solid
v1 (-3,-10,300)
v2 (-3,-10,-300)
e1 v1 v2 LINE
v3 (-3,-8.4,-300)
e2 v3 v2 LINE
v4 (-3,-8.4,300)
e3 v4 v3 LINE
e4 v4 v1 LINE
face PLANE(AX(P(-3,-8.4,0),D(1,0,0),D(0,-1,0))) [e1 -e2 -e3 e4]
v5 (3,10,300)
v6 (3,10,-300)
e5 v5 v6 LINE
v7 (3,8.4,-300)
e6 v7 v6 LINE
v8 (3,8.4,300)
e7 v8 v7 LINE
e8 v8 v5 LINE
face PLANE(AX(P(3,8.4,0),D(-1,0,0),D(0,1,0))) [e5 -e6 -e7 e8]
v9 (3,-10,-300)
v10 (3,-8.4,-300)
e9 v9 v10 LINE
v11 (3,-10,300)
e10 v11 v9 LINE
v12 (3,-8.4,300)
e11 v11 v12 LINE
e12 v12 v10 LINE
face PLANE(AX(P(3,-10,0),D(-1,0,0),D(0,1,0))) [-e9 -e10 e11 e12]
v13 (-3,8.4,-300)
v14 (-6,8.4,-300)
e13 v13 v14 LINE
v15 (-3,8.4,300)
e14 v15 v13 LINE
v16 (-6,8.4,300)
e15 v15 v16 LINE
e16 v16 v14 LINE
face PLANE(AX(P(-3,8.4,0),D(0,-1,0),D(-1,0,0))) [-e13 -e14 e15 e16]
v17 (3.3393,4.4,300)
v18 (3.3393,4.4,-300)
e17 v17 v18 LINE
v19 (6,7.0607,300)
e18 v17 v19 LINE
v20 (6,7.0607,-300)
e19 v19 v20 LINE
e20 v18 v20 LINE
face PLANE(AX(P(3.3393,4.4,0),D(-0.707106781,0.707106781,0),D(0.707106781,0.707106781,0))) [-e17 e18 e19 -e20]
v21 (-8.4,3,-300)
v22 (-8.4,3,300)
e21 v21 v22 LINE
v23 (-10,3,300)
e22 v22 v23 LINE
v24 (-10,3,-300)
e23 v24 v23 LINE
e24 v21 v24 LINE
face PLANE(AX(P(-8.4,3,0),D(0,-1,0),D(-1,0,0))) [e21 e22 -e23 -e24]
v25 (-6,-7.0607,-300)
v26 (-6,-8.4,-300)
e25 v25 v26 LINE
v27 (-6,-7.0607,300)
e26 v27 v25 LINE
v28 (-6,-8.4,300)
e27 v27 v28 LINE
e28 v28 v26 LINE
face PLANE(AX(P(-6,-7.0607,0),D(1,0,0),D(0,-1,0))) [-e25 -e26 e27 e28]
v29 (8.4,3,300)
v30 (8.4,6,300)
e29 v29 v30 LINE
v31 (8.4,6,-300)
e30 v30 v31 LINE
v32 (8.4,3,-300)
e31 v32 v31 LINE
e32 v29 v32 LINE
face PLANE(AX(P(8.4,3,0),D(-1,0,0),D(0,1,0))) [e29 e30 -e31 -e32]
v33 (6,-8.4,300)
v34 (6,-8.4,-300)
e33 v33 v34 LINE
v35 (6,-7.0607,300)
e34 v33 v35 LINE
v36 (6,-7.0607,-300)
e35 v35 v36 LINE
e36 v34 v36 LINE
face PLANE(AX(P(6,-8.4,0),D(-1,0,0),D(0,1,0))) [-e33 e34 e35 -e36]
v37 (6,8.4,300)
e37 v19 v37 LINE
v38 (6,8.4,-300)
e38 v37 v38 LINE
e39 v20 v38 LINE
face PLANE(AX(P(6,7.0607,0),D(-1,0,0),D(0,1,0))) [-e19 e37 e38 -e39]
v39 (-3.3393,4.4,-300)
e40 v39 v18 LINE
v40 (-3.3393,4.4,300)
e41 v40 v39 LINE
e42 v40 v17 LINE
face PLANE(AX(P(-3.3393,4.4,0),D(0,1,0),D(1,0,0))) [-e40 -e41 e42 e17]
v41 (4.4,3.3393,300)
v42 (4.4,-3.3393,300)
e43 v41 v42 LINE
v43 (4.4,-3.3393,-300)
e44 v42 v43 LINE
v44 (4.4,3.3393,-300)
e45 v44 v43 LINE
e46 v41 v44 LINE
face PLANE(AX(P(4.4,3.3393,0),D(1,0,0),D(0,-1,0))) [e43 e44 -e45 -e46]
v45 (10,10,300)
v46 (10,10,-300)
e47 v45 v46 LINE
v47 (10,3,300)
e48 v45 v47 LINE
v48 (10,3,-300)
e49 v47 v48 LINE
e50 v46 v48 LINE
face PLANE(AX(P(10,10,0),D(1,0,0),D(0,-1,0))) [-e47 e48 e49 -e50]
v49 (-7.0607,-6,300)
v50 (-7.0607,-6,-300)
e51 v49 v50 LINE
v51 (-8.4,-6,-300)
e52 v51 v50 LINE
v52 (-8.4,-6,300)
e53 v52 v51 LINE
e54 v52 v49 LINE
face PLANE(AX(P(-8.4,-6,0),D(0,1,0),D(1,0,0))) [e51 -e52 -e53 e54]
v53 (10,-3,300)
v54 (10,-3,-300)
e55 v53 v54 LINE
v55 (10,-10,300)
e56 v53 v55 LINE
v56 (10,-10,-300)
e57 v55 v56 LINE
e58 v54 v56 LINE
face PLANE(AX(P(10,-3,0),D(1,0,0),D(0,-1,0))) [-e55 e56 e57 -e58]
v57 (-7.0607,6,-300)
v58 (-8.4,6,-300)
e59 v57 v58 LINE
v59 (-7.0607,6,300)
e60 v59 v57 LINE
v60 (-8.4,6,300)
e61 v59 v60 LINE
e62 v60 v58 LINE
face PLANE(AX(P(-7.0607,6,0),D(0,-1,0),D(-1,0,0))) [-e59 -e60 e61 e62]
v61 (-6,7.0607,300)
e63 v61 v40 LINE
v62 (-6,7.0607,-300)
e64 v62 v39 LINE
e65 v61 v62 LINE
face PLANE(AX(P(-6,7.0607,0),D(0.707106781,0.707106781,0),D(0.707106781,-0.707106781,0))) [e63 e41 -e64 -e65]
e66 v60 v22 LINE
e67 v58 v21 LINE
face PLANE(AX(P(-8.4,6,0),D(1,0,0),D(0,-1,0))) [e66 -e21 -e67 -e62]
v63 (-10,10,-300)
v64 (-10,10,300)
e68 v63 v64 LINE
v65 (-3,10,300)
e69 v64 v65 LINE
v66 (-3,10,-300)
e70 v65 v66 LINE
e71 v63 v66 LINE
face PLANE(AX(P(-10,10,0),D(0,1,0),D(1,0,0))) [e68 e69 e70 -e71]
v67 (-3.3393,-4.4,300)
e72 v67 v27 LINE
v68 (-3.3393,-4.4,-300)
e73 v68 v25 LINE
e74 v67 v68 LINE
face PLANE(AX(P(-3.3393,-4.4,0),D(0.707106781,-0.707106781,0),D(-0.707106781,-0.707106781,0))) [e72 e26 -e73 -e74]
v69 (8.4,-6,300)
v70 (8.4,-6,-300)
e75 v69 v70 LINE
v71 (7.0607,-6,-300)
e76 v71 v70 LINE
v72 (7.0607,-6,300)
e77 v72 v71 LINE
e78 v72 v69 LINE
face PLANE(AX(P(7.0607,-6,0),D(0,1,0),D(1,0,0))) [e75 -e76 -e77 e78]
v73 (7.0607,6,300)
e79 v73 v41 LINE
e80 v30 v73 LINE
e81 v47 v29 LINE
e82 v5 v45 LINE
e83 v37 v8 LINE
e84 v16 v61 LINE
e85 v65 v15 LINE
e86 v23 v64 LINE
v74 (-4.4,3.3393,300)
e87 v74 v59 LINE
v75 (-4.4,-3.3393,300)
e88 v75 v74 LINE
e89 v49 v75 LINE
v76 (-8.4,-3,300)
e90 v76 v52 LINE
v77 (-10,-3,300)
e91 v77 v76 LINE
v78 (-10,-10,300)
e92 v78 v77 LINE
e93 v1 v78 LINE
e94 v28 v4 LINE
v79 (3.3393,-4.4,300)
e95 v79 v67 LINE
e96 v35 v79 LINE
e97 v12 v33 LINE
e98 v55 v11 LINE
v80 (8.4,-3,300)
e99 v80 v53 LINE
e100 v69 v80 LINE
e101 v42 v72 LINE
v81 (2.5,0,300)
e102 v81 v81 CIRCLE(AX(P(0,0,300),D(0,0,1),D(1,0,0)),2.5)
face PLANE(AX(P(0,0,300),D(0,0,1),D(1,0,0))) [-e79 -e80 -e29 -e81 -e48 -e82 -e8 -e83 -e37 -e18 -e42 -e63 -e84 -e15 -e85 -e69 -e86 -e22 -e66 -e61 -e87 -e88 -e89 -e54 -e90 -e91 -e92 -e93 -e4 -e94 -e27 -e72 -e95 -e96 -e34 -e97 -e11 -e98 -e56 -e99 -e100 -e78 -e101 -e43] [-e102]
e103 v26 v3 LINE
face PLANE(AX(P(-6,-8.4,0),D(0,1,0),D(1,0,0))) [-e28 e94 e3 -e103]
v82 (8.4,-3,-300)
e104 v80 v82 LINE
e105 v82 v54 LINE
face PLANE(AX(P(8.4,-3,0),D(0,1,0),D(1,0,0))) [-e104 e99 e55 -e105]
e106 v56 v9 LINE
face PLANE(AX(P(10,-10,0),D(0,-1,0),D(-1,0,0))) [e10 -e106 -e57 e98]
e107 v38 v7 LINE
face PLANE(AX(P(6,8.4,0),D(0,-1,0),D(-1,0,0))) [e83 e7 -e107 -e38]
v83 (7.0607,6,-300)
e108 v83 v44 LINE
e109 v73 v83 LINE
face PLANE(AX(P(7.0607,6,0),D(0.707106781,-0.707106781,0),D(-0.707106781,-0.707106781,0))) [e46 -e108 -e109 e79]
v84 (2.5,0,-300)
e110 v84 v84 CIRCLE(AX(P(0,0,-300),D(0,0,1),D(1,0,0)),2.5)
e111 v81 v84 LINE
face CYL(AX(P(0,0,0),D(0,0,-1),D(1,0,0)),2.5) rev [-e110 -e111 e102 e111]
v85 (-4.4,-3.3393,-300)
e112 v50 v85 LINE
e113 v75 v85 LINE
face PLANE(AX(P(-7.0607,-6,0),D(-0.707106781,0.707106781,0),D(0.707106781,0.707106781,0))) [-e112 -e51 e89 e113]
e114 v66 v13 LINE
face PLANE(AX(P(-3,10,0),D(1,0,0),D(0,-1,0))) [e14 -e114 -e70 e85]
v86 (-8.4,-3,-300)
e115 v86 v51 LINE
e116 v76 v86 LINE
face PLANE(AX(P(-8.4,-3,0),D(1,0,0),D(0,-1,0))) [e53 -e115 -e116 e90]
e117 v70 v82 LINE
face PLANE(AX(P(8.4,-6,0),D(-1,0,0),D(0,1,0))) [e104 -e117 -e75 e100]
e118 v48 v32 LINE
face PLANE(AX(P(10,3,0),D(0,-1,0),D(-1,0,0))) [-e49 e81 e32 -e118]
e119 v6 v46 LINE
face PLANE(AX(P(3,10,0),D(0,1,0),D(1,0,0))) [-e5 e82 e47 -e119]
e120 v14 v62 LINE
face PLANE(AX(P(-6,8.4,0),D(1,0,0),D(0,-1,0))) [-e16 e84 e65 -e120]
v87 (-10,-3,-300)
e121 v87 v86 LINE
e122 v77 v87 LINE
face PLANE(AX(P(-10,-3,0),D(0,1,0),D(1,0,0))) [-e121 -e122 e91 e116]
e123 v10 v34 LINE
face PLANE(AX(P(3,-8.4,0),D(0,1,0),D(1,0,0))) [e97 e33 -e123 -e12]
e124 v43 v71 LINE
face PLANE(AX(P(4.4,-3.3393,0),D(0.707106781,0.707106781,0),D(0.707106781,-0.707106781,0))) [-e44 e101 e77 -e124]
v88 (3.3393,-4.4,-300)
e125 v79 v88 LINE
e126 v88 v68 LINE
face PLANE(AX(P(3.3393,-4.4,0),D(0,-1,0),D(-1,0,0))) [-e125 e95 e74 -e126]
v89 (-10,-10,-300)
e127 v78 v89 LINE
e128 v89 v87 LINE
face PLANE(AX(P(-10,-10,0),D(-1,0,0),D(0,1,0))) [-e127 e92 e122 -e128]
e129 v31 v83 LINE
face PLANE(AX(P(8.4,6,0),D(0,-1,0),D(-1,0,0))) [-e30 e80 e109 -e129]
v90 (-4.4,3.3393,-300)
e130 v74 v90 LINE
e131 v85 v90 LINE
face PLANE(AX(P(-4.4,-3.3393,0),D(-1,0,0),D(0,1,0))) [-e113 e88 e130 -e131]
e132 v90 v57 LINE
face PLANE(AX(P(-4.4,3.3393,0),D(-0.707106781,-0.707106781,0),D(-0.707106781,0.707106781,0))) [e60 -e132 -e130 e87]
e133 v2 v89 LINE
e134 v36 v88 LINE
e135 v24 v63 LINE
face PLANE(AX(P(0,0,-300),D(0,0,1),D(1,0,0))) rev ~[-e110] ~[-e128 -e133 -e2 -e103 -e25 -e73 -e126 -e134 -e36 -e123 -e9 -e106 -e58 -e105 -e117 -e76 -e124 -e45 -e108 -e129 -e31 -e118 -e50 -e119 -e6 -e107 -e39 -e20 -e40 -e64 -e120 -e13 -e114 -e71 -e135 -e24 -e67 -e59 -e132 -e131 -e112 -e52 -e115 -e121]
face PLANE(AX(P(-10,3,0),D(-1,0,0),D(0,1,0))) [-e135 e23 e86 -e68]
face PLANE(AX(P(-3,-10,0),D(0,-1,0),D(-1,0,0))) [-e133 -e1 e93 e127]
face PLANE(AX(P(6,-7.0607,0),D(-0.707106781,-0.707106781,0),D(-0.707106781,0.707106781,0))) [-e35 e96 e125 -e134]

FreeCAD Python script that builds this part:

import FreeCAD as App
import Part
import Sketcher

V = App.Vector
Q = App.Units.Quantity


def add_polygon(sketch, points):
    """Adds a closed chain of lines whose ends are joined by coincident constraints."""
    first, n = sketch.GeometryCount, len(points)
    for a, b in zip(points, points[1:] + points[:1]):
        sketch.addGeometry(Part.LineSegment(App.Vector(*a, 0), App.Vector(*b, 0)), False)
    for i in range(n):
        sketch.addConstraint(Sketcher.Constraint("Coincident", first + i, 2, first + (i + 1) % n, 1))

doc = App.newDocument("Part")
params = doc.addObject("Spreadsheet::Sheet", "Params")
for row, (alias, value) in enumerate([
    ("sketch1_diameter", "5 mm"),
    ("sketch1_width", "3 mm"),
    ("sketch1_width2", "1.6 mm"),
    ("pad1_length", "600 mm"),
], start=1):
    params.set(f"A{row}", alias)
    params.set(f"B{row}", "=" + value)
    params.setAlias(f"B{row}", alias)

body = doc.addObject("PartDesign::Body", "Body")

# Sketch on XY plane
sketch1 = doc.addObject("Sketcher::SketchObject", "Sketch")
body.addObject(sketch1)
sketch1.AttachmentSupport = (doc.XY_Plane, [""])
sketch1.MapMode = "FlatFace"
add_polygon(sketch1, [(-3, 10), (-10, 10), (-10, 3), (-8.4, 3), (-8.4, 6), (-7.0607, 6), (-4.4, 3.3393), (-4.4, -3.3393), (-7.0607, -6), (-8.4, -6), (-8.4, -3), (-10, -3), (-10, -10), (-3, -10), (-3, -8.4), (-6, -8.4), (-6, -7.0607), (-3.3393, -4.4), (3.3393, -4.4), (6, -7.0607), (6, -8.4), (3, -8.4), (3, -10), (10, -10), (10, -3), (8.4, -3), (8.4, -6), (7.0607, -6), (4.4, -3.3393), (4.4, 3.3393), (7.0607, 6), (8.4, 6), (8.4, 3), (10, 3), (10, 10), (3, 10), (3, 8.4), (6, 8.4), (6, 7.0607), (3.3393, 4.4), (-3.3393, 4.4), (-6, 7.0607), (-6, 8.4), (-3, 8.4)])  # lines 0-43
sketch1.addGeometry(Part.Circle(V(0, 0, 0), V(0, 0, 1), 2.5), False)  # 44
sketch1.addConstraint([
    Sketcher.Constraint("Horizontal", 0),
    Sketcher.Constraint("Vertical", 1),
    Sketcher.Constraint("Horizontal", 2),
    Sketcher.Constraint("Vertical", 3),
    Sketcher.Constraint("Horizontal", 4),
    Sketcher.Constraint("Vertical", 6),
    Sketcher.Constraint("Horizontal", 8),
    Sketcher.Constraint("Vertical", 9),
    Sketcher.Constraint("Horizontal", 10),
    Sketcher.Constraint("Vertical", 11),
    Sketcher.Constraint("Horizontal", 12),
    Sketcher.Constraint("Vertical", 13),
    Sketcher.Constraint("Horizontal", 14),
    Sketcher.Constraint("Vertical", 15),
    Sketcher.Constraint("Horizontal", 17),
    Sketcher.Constraint("Vertical", 19),
    Sketcher.Constraint("Horizontal", 20),
    Sketcher.Constraint("Vertical", 21),
    Sketcher.Constraint("Horizontal", 22),
    Sketcher.Constraint("Vertical", 23),
    Sketcher.Constraint("Horizontal", 24),
    Sketcher.Constraint("Vertical", 25),
    Sketcher.Constraint("Horizontal", 26),
    Sketcher.Constraint("Vertical", 28),
    Sketcher.Constraint("Horizontal", 30),
    Sketcher.Constraint("Vertical", 31),
    Sketcher.Constraint("Horizontal", 32),
    Sketcher.Constraint("Vertical", 33),
    Sketcher.Constraint("Horizontal", 34),
    Sketcher.Constraint("Vertical", 35),
    Sketcher.Constraint("Horizontal", 36),
    Sketcher.Constraint("Vertical", 37),
    Sketcher.Constraint("Horizontal", 39),
    Sketcher.Constraint("Vertical", 41),
    Sketcher.Constraint("Horizontal", 42),
    Sketcher.Constraint("Vertical", 43),
    Sketcher.Constraint("Coincident", 44, 3, -1, 1),
    Sketcher.Constraint("Symmetric", 0, 2, 22, 2, -1, 1),
    Sketcher.Constraint("Symmetric", 2, 2, 24, 2, -1, 1),
    Sketcher.Constraint("Symmetric", 4, 2, 26, 2, -1, 1),
    Sketcher.Constraint("Symmetric", 5, 2, 27, 2, -1, 1),
    Sketcher.Constraint("Symmetric", 7, 2, 29, 2, -1, 1),
    Sketcher.Constraint("Symmetric", 9, 2, 31, 2, -1, 1),
    Sketcher.Constraint("Symmetric", 11, 2, 33, 2, -1, 1),
    Sketcher.Constraint("Symmetric", 13, 2, 35, 2, -1, 1),
    Sketcher.Constraint("Symmetric", 15, 2, 37, 2, -1, 1),
    Sketcher.Constraint("Symmetric", 16, 2, 38, 2, -1, 1),
    Sketcher.Constraint("Symmetric", 18, 2, 40, 2, -1, 1),
    Sketcher.Constraint("Symmetric", 20, 2, 42, 2, -1, 1),
    Sketcher.Constraint("Symmetric", 15, 2, 18, 2, -2),
    Sketcher.Constraint("Symmetric", 13, 2, 20, 2, -2),
    Sketcher.Constraint("Symmetric", 11, 2, 22, 2, -2),
    Sketcher.Constraint("Symmetric", 9, 2, 24, 2, -2),
    Sketcher.Constraint("Symmetric", 7, 2, 26, 2, -2),
    Sketcher.Constraint("Perpendicular", 5, 7),
    Sketcher.Constraint("Parallel", 7, 16),
    Sketcher.Constraint("Perpendicular", 16, 18),
    Sketcher.Constraint("Perpendicular", 27, 29),
    Sketcher.Constraint("Perpendicular", 38, 40),
    Sketcher.Constraint("Horizontal", 6, 2, 27, 2),
    Sketcher.Constraint("Equal", 34, 1),
    Sketcher.Constraint("Equal", 42, 3),
    Sketcher.Constraint("Equal", 39, 6),
    Sketcher.Constraint("Equal", 32, 13),
    Sketcher.Constraint("Equal", 30, 15),
    Sketcher.Constraint("Equal", 7, 16),
    Sketcher.Constraint("Diameter", 44, Q("5 mm")),
    Sketcher.Constraint("DistanceX", 14, 2, 14, 1, Q("3 mm")),
    Sketcher.Constraint("DistanceX", 2, 1, 2, 2, Q("1.6 mm")),
    Sketcher.Constraint("DistanceY", -1, 1, 1, 2, Q("3 mm")),
    Sketcher.Constraint("DistanceY", 3, 2, 0, 2, Q("4 mm")),
    Sketcher.Constraint("DistanceX", 2, 2, 5, 2, Q("4 mm")),
    Sketcher.Constraint("DistanceX", 4, 1, 4, 2, Q("1.3393 mm")),
])
sketch1.setExpression("Constraints[110]", "Params.sketch1_diameter")
sketch1.setExpression("Constraints[111]", "Params.sketch1_width")
sketch1.setExpression("Constraints[112]", "Params.sketch1_width2")
pad1 = doc.addObject("PartDesign::Pad", "Pad")
body.addObject(pad1)
pad1.Profile = sketch1
pad1.setExpression("Length", "Params.pad1_length")
pad1.Midplane = True

doc.recompute()
